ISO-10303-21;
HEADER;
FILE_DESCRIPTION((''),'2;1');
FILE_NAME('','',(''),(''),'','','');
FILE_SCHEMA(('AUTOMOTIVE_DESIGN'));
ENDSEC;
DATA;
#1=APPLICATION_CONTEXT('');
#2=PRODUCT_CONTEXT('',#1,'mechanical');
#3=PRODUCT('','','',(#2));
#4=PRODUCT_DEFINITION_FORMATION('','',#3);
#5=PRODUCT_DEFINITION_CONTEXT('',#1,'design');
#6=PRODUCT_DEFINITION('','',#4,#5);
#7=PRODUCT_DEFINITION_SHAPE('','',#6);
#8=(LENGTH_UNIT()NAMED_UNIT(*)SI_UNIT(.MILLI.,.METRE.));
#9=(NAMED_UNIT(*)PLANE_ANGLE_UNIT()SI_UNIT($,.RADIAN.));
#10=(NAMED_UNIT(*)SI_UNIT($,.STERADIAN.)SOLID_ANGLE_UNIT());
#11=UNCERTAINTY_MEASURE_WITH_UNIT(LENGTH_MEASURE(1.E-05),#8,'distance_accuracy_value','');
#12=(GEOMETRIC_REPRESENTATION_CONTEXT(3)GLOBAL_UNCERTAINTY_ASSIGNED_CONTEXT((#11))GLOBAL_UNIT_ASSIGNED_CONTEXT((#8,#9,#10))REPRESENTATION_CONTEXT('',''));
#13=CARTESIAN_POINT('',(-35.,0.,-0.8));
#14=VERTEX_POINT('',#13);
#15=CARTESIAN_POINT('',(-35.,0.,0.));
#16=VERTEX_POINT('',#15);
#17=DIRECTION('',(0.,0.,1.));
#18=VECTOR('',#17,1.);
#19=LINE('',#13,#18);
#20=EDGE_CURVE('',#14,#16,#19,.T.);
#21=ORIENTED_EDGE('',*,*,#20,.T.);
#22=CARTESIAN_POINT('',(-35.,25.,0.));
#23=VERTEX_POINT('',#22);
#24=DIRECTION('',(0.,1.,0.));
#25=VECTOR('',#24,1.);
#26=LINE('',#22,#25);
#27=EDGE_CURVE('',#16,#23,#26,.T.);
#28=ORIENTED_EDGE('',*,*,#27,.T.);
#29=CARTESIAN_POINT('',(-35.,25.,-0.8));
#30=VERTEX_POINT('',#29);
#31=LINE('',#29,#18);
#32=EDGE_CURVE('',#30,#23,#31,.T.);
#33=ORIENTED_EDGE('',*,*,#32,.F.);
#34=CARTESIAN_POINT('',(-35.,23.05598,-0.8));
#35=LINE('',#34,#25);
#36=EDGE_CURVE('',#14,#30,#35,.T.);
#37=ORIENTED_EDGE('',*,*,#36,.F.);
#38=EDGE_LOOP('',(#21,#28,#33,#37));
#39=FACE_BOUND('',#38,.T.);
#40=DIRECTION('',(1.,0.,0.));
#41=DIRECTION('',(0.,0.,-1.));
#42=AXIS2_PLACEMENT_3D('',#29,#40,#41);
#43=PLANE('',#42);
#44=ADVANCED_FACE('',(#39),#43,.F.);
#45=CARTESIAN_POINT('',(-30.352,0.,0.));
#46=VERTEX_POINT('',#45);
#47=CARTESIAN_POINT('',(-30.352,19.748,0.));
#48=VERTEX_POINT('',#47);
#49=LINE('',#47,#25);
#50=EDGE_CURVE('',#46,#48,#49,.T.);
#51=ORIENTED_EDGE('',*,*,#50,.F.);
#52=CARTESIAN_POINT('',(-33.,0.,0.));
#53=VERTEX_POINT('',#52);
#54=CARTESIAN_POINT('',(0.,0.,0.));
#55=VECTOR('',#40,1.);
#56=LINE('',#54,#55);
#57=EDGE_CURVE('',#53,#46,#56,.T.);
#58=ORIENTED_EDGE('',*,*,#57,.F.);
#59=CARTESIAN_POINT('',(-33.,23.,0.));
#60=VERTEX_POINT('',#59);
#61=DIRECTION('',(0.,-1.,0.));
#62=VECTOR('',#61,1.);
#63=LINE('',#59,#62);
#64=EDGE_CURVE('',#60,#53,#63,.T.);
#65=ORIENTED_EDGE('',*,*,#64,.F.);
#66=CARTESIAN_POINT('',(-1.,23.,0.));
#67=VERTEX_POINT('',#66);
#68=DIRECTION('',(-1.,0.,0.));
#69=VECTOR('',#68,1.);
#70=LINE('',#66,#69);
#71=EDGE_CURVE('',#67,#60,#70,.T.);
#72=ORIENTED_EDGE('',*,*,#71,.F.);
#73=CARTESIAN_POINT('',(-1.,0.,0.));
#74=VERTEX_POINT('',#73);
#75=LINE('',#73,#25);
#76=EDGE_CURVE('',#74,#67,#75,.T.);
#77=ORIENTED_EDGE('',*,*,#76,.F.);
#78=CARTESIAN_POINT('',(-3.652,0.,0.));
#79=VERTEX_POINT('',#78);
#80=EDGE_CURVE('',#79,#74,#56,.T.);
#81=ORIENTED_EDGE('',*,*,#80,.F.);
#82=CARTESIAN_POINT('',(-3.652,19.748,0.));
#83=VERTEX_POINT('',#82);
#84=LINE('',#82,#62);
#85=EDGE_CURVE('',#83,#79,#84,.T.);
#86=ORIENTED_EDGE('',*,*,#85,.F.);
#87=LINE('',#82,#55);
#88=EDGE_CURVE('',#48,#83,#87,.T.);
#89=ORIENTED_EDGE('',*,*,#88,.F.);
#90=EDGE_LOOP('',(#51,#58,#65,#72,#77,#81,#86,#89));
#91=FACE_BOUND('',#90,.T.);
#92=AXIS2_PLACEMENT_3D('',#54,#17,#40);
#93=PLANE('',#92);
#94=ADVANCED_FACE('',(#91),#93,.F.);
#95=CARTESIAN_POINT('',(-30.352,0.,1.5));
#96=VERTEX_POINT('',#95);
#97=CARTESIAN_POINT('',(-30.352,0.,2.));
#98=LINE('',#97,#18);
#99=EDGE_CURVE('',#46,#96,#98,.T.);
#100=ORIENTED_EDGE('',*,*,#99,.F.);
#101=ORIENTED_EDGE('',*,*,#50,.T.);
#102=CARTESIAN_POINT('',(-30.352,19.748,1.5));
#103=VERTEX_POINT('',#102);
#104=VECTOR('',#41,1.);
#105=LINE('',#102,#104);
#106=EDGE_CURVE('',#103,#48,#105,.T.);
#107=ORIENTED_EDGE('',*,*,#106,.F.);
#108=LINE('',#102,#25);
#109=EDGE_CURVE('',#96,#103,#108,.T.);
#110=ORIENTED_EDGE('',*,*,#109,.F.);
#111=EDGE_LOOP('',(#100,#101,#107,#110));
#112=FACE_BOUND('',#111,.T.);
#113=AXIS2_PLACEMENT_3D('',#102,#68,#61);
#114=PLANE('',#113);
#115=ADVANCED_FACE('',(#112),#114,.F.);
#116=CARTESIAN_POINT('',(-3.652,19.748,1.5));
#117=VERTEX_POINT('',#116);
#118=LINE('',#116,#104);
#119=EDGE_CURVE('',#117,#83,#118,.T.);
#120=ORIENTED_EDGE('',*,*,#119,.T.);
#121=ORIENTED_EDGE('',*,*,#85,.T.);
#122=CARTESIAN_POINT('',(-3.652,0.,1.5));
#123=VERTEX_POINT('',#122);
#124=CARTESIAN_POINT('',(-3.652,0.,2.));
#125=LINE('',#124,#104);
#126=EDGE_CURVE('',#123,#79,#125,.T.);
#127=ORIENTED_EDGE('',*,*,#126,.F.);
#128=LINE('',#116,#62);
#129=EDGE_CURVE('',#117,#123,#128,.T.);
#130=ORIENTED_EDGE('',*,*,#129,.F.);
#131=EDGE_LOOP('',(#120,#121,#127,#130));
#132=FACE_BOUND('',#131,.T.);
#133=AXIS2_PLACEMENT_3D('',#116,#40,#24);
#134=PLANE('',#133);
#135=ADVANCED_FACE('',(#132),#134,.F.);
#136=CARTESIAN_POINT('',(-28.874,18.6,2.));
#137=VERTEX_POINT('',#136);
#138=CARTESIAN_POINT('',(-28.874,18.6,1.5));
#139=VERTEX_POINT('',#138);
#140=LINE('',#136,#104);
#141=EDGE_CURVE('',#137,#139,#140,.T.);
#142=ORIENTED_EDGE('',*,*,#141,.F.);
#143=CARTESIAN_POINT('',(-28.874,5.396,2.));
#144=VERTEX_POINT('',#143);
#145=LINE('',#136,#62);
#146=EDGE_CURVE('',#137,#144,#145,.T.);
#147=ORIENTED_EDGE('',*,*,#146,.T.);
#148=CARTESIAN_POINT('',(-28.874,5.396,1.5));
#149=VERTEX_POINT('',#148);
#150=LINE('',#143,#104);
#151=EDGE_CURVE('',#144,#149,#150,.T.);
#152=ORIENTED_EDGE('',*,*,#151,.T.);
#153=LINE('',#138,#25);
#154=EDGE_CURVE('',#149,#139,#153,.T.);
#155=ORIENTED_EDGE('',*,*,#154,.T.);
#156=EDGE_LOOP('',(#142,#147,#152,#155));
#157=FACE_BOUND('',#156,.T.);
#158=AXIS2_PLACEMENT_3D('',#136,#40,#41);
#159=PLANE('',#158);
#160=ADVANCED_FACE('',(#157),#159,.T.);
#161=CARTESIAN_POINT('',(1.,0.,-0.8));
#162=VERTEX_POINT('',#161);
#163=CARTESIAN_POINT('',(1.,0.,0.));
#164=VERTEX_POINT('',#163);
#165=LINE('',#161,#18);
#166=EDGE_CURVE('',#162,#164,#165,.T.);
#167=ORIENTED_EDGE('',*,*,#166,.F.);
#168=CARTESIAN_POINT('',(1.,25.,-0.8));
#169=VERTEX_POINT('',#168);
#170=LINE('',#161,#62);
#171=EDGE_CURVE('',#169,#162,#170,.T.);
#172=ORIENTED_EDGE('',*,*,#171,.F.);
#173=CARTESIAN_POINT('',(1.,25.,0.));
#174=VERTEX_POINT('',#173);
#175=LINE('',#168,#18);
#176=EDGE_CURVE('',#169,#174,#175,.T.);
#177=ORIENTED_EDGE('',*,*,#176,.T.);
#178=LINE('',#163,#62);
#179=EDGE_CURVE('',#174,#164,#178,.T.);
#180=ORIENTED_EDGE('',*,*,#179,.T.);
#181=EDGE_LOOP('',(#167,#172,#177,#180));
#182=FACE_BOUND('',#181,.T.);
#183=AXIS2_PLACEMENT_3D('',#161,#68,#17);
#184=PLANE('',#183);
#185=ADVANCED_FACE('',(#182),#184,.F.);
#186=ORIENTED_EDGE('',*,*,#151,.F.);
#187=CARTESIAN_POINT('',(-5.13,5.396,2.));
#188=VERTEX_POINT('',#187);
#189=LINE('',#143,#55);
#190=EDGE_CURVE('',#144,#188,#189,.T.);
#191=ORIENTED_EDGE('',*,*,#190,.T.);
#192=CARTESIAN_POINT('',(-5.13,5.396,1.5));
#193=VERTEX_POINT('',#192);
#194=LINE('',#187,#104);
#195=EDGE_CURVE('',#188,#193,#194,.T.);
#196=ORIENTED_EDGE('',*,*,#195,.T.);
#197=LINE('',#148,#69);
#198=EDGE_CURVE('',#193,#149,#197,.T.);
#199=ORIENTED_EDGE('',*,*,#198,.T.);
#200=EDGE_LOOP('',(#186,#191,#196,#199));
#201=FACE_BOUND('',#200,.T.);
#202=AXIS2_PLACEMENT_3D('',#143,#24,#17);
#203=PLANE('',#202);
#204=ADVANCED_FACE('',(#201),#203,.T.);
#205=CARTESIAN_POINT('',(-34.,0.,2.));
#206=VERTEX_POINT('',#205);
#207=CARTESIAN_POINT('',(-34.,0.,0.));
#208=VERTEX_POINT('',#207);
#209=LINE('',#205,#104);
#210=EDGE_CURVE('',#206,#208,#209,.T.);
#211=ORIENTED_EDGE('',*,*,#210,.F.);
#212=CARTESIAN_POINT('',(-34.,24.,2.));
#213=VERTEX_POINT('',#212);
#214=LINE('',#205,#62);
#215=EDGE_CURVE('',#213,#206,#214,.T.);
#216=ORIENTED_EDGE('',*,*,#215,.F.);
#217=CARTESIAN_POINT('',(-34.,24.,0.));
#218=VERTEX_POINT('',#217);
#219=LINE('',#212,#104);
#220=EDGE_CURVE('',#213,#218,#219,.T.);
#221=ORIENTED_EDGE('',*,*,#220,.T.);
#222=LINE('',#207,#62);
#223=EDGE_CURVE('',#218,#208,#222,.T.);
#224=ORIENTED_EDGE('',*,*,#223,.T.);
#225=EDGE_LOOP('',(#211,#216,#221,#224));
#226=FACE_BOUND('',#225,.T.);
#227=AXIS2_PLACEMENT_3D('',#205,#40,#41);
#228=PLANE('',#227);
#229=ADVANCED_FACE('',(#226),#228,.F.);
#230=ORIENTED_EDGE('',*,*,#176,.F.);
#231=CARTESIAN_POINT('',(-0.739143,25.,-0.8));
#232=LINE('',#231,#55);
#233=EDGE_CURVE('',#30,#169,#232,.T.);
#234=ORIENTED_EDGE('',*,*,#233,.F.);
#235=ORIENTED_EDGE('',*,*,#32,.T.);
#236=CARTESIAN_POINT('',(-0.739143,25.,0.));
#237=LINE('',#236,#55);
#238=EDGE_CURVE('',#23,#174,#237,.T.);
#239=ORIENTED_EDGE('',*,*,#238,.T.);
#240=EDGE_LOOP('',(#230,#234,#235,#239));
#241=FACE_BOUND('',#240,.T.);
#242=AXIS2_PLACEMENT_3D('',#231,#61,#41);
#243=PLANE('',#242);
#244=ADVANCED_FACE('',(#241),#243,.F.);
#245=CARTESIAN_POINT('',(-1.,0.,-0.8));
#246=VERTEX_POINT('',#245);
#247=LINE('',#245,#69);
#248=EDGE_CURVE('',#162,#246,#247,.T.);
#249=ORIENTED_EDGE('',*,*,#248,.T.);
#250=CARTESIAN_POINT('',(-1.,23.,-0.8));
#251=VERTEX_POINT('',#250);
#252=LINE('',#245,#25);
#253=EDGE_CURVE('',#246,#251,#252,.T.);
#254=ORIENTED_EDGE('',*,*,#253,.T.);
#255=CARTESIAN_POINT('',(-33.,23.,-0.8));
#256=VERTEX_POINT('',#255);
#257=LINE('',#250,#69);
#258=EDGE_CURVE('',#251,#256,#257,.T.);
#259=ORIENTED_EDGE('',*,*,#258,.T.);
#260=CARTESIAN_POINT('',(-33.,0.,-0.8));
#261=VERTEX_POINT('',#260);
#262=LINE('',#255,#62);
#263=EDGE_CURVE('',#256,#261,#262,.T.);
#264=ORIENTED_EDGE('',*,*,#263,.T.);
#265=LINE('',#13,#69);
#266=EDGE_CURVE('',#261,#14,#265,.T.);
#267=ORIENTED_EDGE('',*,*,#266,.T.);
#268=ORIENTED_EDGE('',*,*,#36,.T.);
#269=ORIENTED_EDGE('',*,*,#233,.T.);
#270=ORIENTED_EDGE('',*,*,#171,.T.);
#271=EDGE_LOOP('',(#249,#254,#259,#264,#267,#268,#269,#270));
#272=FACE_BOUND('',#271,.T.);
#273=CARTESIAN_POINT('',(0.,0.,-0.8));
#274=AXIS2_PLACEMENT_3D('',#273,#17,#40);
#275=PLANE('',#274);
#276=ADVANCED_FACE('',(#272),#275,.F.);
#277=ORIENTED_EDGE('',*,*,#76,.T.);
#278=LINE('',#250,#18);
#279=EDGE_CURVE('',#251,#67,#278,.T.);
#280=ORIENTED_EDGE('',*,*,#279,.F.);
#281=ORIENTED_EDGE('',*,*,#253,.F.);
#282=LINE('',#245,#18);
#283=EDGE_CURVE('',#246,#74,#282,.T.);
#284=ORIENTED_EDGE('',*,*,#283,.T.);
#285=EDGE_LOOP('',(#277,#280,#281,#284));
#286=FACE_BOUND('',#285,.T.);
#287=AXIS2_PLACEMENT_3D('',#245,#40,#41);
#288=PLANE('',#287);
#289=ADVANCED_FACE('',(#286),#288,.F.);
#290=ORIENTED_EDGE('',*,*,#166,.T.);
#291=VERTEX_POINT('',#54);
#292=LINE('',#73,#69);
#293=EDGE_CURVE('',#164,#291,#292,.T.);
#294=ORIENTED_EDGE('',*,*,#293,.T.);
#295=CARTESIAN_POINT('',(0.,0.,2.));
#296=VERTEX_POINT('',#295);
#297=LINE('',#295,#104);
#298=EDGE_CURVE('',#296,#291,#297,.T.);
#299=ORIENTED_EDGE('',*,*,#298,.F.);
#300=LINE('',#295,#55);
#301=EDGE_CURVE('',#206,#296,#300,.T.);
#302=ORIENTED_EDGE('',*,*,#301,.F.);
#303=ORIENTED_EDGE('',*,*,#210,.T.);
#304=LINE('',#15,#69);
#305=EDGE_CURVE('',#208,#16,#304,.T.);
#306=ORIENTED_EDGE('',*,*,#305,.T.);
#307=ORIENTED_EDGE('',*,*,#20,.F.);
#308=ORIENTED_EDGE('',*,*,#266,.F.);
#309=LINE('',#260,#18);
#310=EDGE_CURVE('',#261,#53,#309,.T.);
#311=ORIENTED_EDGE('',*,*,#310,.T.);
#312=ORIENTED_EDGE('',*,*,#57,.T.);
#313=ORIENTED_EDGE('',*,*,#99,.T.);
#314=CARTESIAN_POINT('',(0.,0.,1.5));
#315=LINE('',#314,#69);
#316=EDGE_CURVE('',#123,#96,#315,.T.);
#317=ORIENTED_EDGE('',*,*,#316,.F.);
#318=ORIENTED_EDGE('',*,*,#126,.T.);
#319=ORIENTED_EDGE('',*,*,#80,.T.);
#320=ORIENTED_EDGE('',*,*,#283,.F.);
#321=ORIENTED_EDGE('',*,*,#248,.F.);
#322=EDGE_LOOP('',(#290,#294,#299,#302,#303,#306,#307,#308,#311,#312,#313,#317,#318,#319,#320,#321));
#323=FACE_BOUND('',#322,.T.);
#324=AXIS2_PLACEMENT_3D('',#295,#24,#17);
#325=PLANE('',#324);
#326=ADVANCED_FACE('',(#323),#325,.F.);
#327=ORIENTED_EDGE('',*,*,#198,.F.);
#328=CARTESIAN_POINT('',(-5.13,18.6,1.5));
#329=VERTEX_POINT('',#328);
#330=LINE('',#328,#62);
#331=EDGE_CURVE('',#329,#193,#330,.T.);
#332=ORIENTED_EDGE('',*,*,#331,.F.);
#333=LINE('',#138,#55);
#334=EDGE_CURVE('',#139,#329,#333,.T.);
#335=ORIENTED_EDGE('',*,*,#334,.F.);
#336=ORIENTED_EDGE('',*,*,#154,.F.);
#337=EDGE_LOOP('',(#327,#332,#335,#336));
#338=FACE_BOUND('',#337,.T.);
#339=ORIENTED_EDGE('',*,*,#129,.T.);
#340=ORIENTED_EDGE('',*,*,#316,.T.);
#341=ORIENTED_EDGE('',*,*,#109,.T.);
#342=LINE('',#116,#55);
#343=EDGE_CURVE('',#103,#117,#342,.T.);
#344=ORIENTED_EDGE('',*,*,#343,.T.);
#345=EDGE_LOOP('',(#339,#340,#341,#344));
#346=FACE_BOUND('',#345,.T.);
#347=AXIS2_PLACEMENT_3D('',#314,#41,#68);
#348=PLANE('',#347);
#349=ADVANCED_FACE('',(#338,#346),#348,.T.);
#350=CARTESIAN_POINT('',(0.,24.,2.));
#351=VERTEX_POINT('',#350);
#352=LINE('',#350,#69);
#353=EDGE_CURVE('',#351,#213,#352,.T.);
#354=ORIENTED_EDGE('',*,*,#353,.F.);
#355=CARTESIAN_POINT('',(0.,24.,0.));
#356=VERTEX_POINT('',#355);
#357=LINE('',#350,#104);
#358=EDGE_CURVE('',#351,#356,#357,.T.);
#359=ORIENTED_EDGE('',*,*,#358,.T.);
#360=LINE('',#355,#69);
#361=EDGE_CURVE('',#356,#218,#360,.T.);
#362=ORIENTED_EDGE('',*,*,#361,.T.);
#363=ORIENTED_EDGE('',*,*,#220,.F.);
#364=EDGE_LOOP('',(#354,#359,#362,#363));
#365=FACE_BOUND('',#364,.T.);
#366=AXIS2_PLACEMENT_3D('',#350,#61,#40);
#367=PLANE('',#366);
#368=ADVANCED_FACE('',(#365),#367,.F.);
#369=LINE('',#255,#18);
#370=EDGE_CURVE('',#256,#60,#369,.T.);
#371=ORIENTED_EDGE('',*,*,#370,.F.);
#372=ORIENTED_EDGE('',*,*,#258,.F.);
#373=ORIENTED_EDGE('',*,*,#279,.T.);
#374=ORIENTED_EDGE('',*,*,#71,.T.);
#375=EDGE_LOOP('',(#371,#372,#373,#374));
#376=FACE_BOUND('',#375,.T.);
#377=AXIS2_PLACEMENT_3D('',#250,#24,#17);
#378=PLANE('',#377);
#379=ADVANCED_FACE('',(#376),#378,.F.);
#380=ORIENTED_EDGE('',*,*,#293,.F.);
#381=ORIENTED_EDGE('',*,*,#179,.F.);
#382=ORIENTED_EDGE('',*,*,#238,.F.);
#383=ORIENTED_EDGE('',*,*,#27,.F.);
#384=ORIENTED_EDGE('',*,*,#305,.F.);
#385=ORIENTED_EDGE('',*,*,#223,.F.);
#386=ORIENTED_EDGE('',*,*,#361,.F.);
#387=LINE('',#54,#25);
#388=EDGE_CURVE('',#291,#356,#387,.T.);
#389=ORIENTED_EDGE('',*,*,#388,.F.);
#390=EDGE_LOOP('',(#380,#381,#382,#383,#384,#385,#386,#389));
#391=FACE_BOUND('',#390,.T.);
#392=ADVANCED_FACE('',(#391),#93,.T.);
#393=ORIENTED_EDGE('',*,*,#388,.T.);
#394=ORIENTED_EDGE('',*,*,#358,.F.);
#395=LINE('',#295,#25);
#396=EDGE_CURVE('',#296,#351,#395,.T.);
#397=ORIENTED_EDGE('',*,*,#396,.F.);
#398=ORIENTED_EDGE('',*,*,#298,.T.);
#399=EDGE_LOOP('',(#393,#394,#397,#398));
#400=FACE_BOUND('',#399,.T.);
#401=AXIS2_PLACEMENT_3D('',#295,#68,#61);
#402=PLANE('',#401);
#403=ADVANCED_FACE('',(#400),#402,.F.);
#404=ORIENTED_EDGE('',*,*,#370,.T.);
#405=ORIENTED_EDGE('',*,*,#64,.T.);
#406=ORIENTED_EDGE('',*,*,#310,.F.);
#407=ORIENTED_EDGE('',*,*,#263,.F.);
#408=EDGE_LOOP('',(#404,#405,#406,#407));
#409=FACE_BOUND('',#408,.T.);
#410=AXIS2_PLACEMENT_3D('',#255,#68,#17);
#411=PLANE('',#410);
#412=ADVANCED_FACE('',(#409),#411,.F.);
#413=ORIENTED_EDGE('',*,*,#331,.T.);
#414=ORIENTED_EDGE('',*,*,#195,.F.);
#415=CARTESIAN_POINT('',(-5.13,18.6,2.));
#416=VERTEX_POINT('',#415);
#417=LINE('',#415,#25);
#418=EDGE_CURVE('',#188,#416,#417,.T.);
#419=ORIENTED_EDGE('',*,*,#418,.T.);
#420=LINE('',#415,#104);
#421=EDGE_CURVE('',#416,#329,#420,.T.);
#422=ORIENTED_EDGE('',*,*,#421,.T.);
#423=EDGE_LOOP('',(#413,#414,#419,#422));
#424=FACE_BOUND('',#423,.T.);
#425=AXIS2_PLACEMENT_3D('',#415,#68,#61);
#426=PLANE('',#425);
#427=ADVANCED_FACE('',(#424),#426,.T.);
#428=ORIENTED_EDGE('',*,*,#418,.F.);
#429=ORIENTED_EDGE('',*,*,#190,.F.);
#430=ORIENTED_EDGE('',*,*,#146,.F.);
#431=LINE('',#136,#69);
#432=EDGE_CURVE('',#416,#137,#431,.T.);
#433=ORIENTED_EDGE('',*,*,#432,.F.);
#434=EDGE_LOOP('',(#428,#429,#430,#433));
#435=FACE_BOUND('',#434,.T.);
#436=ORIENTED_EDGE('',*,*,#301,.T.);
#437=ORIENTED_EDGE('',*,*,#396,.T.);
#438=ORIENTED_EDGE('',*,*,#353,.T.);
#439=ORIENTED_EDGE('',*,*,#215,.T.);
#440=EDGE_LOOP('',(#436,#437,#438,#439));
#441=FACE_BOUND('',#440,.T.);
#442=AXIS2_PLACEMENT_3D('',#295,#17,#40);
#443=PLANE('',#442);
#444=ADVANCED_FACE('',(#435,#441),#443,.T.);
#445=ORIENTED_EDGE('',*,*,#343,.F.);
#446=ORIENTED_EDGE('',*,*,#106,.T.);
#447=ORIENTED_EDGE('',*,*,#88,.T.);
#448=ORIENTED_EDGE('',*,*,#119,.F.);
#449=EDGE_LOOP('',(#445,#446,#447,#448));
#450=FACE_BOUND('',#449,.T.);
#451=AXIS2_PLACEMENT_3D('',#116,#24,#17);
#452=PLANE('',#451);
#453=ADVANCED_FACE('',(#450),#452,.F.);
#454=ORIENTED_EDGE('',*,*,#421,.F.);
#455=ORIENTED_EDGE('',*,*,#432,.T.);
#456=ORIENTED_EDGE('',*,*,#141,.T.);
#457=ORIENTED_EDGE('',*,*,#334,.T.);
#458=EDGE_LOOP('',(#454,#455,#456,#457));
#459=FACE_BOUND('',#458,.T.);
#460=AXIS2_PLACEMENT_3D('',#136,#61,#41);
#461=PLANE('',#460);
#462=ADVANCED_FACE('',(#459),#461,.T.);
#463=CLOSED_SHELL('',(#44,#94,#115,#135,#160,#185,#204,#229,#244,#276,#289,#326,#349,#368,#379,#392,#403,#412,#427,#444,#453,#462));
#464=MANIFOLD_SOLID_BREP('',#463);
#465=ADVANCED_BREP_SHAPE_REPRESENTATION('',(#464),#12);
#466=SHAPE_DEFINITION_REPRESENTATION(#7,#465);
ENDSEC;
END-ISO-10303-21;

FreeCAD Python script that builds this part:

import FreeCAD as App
import Part
import Sketcher
from FreeCAD import Vector


def add_polygon(sketch, points):
    """Adds a closed chain of lines whose ends are joined by coincident constraints."""
    first, n = sketch.GeometryCount, len(points)
    for a, b in zip(points, points[1:] + points[:1]):
        sketch.addGeometry(Part.LineSegment(App.Vector(*a, 0), App.Vector(*b, 0)), False)
    for i in range(n):
        sketch.addConstraint(Sketcher.Constraint("Coincident", first + i, 2, first + (i + 1) % n, 1))

doc = App.newDocument("Part")
body = doc.addObject("PartDesign::Body", "Body")

# Sketch on XY plane
sketch1 = body.newObject("Sketcher::SketchObject", "Sketch")
sketch1.AttachmentSupport = (doc.getObject("XY_Plane"), [""])
sketch1.MapMode = "FlatFace"
add_polygon(sketch1, [(-34, 24), (-34, 0), (0, 0), (0, 24)])  # lines 0-3
add_polygon(sketch1, [(-5.13, 5.396), (-28.874, 5.396), (-28.874, 18.6), (-5.13, 18.6)])  # lines 4-7
sketch1.addConstraint(Sketcher.Constraint("Vertical", 0))
sketch1.addConstraint(Sketcher.Constraint("Horizontal", 1))
sketch1.addConstraint(Sketcher.Constraint("Vertical", 2))
sketch1.addConstraint(Sketcher.Constraint("Horizontal", 3))
sketch1.addConstraint(Sketcher.Constraint("Horizontal", 4))
sketch1.addConstraint(Sketcher.Constraint("Vertical", 5))
sketch1.addConstraint(Sketcher.Constraint("Horizontal", 6))
sketch1.addConstraint(Sketcher.Constraint("Vertical", 7))
sketch1.addConstraint(Sketcher.Constraint("Coincident", 1, 2, -1, 1))
sketch1.addConstraint(Sketcher.Constraint("DistanceX", 1, 1, 1, 2, 34.0))
sketch1.addConstraint(Sketcher.Constraint("DistanceY", 0, 2, 0, 1, 24.0))
sketch1.addConstraint(Sketcher.Constraint("DistanceY", -1, 1, 5, 2, 18.6))
sketch1.addConstraint(Sketcher.Constraint("DistanceX", 4, 2, 4, 1, 23.744))
sketch1.addConstraint(Sketcher.Constraint("DistanceY", 5, 1, 5, 2, 13.204))
sketch1.addConstraint(Sketcher.Constraint("DistanceX", 6, 2, -1, 1, 5.13))
pad1 = body.newObject("PartDesign::Pad", "Pad")
pad1.Profile = sketch1
pad1.Length = 2

# Sketch on XY plane
sketch2 = body.newObject("Sketcher::SketchObject", "Sketch001")
sketch2.AttachmentSupport = (doc.getObject("XY_Plane"), [""])
sketch2.MapMode = "FlatFace"
add_polygon(sketch2, [(-3.652, 19.748), (-3.652, -2.252), (-30.352, -2.252), (-30.352, 19.748)])  # lines 0-3
sketch2.addConstraint(Sketcher.Constraint("Vertical", 0))
sketch2.addConstraint(Sketcher.Constraint("Horizontal", 1))
sketch2.addConstraint(Sketcher.Constraint("Vertical", 2))
sketch2.addConstraint(Sketcher.Constraint("Horizontal", 3))
sketch2.addConstraint(Sketcher.Constraint("DistanceY", 0, 2, 0, 1, 22.0))
sketch2.addConstraint(Sketcher.Constraint("DistanceX", 1, 2, 1, 1, 26.7))
sketch2.addConstraint(Sketcher.Constraint("DistanceX", 0, 2, -1, 1, 3.652))
sketch2.addConstraint(Sketcher.Constraint("DistanceY", 0, 2, -1, 1, 2.252))
pocket1 = body.newObject("PartDesign::Pocket", "Pocket")
pocket1.Profile = sketch2
pocket1.Length = 1.5
pocket1.Reversed = True

# Sketch on XY plane
sketch3 = body.newObject("Sketcher::SketchObject", "Sketch002")
sketch3.AttachmentSupport = (doc.getObject("XY_Plane"), [""])
sketch3.MapMode = "FlatFace"
add_polygon(sketch3, [(1, 0), (-1, 0), (-1, 23), (-33, 23), (-33, 0), (-35, 0), (-35, 25), (1, 25)])  # lines 0-7
sketch3.addConstraint(Sketcher.Constraint("Horizontal", 0))
sketch3.addConstraint(Sketcher.Constraint("Vertical", 1))
sketch3.addConstraint(Sketcher.Constraint("Horizontal", 2))
sketch3.addConstraint(Sketcher.Constraint("Vertical", 3))
sketch3.addConstraint(Sketcher.Constraint("Horizontal", 4))
sketch3.addConstraint(Sketcher.Constraint("Vertical", 5))
sketch3.addConstraint(Sketcher.Constraint("Horizontal", 6))
sketch3.addConstraint(Sketcher.Constraint("Vertical", 7))
sketch3.addConstraint(Sketcher.Constraint("Symmetric", 0, 2, 7, 2, -1, 1))
sketch3.addConstraint(Sketcher.Constraint("PointOnObject", 3, 2, -1))
sketch3.addConstraint(Sketcher.Constraint("Equal", 0, 4))
sketch3.addConstraint(Sketcher.Constraint("DistanceX", 0, 2, 0, 1, 2.0))
sketch3.addConstraint(Sketcher.Constraint("DistanceX", 2, 2, 2, 1, 32.0))
sketch3.addConstraint(Sketcher.Constraint("DistanceY", 1, 1, 1, 2, 23.0))
sketch3.addConstraint(Sketcher.Constraint("DistanceY", 5, 1, 5, 2, 25.0))
pad2 = body.newObject("PartDesign::Pad", "Pad001")
pad2.Profile = sketch3
pad2.Length = 0.8
pad2.Reversed = True

doc.recompute()
